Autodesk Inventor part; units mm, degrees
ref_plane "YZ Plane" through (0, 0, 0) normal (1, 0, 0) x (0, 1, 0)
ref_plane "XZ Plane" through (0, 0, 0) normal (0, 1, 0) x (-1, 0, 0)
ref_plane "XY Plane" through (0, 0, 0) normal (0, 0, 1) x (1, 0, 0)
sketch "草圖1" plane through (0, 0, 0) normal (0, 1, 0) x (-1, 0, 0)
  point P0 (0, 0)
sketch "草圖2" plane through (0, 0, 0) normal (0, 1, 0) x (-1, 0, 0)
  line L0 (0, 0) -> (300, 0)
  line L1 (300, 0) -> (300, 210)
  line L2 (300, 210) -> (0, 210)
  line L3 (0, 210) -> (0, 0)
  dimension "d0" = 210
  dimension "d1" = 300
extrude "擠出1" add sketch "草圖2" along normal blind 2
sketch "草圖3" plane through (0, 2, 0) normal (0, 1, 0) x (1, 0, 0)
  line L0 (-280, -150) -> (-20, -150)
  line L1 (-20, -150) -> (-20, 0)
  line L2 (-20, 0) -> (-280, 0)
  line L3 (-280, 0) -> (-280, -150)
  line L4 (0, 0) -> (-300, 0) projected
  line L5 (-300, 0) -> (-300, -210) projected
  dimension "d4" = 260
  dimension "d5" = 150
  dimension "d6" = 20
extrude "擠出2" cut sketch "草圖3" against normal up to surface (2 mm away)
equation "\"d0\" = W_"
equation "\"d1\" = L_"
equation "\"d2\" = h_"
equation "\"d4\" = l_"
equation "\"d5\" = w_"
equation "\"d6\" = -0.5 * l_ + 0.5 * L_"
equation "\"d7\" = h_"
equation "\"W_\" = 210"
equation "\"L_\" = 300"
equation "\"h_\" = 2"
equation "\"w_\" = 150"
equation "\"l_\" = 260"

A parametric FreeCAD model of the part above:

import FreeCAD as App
import Part
import Sketcher
from FreeCAD import Vector
Q = App.Units.Quantity


def add_polygon(sketch, points):
    """Adds a closed chain of lines whose ends are joined by coincident constraints."""
    first, n = sketch.GeometryCount, len(points)
    for a, b in zip(points, points[1:] + points[:1]):
        sketch.addGeometry(Part.LineSegment(App.Vector(*a, 0), App.Vector(*b, 0)), False)
    for i in range(n):
        sketch.addConstraint(Sketcher.Constraint("Coincident", first + i, 2, first + (i + 1) % n, 1))

doc = App.newDocument("Part")
body = doc.addObject("PartDesign::Body", "Body")

# Sketch on XZ plane
sketch1 = body.newObject("Sketcher::SketchObject", "Sketch")
sketch1.AttachmentSupport = (doc.getObject("XZ_Plane"), [""])
sketch1.MapMode = "FlatFace"
add_polygon(sketch1, [(0, 210), (0, 0), (-300, 0), (-300, 210)])  # lines 0-3
sketch1.addConstraint([
    Sketcher.Constraint("Vertical", 0),
    Sketcher.Constraint("Horizontal", 1),
    Sketcher.Constraint("Vertical", 2),
    Sketcher.Constraint("Horizontal", 3),
    Sketcher.Constraint("Coincident", 0, 2, -1, 1),
    Sketcher.Constraint("DistanceX", 1, 2, 1, 1, Q("300 mm")),
    Sketcher.Constraint("DistanceY", 0, 2, 0, 1, Q("210 mm")),
])
pad1 = body.newObject("PartDesign::Pad", "Pad")
pad1.Profile = sketch1
pad1.Length = 2
pad1.Reversed = True

# Sketch on XZ plane
sketch2 = body.newObject("Sketcher::SketchObject", "Sketch001")
sketch2.AttachmentSupport = (doc.getObject("XZ_Plane"), [""])
sketch2.MapMode = "FlatFace"
sketch2.AttachmentOffset = App.Placement(Vector(0, 0, -2), App.Rotation())
add_polygon(sketch2, [(-280, 0), (-280, 150), (-20, 150), (-20, 0)])  # lines 0-3
sketch2.addConstraint([
    Sketcher.Constraint("Vertical", 0),
    Sketcher.Constraint("Horizontal", 1),
    Sketcher.Constraint("Vertical", 2),
    Sketcher.Constraint("Horizontal", 3),
    Sketcher.Constraint("PointOnObject", 2, 2, -1),
    Sketcher.Constraint("DistanceX", 1, 1, 1, 2, Q("260 mm")),
    Sketcher.Constraint("DistanceY", 0, 1, 0, 2, Q("150 mm")),
    Sketcher.Constraint("DistanceX", 1, 2, -1, 1, Q("20 mm")),
])
pocket1 = body.newObject("PartDesign::Pocket", "Pocket")
pocket1.Profile = sketch2
pocket1.Length = 2
pocket1.Reversed = True

doc.recompute()
